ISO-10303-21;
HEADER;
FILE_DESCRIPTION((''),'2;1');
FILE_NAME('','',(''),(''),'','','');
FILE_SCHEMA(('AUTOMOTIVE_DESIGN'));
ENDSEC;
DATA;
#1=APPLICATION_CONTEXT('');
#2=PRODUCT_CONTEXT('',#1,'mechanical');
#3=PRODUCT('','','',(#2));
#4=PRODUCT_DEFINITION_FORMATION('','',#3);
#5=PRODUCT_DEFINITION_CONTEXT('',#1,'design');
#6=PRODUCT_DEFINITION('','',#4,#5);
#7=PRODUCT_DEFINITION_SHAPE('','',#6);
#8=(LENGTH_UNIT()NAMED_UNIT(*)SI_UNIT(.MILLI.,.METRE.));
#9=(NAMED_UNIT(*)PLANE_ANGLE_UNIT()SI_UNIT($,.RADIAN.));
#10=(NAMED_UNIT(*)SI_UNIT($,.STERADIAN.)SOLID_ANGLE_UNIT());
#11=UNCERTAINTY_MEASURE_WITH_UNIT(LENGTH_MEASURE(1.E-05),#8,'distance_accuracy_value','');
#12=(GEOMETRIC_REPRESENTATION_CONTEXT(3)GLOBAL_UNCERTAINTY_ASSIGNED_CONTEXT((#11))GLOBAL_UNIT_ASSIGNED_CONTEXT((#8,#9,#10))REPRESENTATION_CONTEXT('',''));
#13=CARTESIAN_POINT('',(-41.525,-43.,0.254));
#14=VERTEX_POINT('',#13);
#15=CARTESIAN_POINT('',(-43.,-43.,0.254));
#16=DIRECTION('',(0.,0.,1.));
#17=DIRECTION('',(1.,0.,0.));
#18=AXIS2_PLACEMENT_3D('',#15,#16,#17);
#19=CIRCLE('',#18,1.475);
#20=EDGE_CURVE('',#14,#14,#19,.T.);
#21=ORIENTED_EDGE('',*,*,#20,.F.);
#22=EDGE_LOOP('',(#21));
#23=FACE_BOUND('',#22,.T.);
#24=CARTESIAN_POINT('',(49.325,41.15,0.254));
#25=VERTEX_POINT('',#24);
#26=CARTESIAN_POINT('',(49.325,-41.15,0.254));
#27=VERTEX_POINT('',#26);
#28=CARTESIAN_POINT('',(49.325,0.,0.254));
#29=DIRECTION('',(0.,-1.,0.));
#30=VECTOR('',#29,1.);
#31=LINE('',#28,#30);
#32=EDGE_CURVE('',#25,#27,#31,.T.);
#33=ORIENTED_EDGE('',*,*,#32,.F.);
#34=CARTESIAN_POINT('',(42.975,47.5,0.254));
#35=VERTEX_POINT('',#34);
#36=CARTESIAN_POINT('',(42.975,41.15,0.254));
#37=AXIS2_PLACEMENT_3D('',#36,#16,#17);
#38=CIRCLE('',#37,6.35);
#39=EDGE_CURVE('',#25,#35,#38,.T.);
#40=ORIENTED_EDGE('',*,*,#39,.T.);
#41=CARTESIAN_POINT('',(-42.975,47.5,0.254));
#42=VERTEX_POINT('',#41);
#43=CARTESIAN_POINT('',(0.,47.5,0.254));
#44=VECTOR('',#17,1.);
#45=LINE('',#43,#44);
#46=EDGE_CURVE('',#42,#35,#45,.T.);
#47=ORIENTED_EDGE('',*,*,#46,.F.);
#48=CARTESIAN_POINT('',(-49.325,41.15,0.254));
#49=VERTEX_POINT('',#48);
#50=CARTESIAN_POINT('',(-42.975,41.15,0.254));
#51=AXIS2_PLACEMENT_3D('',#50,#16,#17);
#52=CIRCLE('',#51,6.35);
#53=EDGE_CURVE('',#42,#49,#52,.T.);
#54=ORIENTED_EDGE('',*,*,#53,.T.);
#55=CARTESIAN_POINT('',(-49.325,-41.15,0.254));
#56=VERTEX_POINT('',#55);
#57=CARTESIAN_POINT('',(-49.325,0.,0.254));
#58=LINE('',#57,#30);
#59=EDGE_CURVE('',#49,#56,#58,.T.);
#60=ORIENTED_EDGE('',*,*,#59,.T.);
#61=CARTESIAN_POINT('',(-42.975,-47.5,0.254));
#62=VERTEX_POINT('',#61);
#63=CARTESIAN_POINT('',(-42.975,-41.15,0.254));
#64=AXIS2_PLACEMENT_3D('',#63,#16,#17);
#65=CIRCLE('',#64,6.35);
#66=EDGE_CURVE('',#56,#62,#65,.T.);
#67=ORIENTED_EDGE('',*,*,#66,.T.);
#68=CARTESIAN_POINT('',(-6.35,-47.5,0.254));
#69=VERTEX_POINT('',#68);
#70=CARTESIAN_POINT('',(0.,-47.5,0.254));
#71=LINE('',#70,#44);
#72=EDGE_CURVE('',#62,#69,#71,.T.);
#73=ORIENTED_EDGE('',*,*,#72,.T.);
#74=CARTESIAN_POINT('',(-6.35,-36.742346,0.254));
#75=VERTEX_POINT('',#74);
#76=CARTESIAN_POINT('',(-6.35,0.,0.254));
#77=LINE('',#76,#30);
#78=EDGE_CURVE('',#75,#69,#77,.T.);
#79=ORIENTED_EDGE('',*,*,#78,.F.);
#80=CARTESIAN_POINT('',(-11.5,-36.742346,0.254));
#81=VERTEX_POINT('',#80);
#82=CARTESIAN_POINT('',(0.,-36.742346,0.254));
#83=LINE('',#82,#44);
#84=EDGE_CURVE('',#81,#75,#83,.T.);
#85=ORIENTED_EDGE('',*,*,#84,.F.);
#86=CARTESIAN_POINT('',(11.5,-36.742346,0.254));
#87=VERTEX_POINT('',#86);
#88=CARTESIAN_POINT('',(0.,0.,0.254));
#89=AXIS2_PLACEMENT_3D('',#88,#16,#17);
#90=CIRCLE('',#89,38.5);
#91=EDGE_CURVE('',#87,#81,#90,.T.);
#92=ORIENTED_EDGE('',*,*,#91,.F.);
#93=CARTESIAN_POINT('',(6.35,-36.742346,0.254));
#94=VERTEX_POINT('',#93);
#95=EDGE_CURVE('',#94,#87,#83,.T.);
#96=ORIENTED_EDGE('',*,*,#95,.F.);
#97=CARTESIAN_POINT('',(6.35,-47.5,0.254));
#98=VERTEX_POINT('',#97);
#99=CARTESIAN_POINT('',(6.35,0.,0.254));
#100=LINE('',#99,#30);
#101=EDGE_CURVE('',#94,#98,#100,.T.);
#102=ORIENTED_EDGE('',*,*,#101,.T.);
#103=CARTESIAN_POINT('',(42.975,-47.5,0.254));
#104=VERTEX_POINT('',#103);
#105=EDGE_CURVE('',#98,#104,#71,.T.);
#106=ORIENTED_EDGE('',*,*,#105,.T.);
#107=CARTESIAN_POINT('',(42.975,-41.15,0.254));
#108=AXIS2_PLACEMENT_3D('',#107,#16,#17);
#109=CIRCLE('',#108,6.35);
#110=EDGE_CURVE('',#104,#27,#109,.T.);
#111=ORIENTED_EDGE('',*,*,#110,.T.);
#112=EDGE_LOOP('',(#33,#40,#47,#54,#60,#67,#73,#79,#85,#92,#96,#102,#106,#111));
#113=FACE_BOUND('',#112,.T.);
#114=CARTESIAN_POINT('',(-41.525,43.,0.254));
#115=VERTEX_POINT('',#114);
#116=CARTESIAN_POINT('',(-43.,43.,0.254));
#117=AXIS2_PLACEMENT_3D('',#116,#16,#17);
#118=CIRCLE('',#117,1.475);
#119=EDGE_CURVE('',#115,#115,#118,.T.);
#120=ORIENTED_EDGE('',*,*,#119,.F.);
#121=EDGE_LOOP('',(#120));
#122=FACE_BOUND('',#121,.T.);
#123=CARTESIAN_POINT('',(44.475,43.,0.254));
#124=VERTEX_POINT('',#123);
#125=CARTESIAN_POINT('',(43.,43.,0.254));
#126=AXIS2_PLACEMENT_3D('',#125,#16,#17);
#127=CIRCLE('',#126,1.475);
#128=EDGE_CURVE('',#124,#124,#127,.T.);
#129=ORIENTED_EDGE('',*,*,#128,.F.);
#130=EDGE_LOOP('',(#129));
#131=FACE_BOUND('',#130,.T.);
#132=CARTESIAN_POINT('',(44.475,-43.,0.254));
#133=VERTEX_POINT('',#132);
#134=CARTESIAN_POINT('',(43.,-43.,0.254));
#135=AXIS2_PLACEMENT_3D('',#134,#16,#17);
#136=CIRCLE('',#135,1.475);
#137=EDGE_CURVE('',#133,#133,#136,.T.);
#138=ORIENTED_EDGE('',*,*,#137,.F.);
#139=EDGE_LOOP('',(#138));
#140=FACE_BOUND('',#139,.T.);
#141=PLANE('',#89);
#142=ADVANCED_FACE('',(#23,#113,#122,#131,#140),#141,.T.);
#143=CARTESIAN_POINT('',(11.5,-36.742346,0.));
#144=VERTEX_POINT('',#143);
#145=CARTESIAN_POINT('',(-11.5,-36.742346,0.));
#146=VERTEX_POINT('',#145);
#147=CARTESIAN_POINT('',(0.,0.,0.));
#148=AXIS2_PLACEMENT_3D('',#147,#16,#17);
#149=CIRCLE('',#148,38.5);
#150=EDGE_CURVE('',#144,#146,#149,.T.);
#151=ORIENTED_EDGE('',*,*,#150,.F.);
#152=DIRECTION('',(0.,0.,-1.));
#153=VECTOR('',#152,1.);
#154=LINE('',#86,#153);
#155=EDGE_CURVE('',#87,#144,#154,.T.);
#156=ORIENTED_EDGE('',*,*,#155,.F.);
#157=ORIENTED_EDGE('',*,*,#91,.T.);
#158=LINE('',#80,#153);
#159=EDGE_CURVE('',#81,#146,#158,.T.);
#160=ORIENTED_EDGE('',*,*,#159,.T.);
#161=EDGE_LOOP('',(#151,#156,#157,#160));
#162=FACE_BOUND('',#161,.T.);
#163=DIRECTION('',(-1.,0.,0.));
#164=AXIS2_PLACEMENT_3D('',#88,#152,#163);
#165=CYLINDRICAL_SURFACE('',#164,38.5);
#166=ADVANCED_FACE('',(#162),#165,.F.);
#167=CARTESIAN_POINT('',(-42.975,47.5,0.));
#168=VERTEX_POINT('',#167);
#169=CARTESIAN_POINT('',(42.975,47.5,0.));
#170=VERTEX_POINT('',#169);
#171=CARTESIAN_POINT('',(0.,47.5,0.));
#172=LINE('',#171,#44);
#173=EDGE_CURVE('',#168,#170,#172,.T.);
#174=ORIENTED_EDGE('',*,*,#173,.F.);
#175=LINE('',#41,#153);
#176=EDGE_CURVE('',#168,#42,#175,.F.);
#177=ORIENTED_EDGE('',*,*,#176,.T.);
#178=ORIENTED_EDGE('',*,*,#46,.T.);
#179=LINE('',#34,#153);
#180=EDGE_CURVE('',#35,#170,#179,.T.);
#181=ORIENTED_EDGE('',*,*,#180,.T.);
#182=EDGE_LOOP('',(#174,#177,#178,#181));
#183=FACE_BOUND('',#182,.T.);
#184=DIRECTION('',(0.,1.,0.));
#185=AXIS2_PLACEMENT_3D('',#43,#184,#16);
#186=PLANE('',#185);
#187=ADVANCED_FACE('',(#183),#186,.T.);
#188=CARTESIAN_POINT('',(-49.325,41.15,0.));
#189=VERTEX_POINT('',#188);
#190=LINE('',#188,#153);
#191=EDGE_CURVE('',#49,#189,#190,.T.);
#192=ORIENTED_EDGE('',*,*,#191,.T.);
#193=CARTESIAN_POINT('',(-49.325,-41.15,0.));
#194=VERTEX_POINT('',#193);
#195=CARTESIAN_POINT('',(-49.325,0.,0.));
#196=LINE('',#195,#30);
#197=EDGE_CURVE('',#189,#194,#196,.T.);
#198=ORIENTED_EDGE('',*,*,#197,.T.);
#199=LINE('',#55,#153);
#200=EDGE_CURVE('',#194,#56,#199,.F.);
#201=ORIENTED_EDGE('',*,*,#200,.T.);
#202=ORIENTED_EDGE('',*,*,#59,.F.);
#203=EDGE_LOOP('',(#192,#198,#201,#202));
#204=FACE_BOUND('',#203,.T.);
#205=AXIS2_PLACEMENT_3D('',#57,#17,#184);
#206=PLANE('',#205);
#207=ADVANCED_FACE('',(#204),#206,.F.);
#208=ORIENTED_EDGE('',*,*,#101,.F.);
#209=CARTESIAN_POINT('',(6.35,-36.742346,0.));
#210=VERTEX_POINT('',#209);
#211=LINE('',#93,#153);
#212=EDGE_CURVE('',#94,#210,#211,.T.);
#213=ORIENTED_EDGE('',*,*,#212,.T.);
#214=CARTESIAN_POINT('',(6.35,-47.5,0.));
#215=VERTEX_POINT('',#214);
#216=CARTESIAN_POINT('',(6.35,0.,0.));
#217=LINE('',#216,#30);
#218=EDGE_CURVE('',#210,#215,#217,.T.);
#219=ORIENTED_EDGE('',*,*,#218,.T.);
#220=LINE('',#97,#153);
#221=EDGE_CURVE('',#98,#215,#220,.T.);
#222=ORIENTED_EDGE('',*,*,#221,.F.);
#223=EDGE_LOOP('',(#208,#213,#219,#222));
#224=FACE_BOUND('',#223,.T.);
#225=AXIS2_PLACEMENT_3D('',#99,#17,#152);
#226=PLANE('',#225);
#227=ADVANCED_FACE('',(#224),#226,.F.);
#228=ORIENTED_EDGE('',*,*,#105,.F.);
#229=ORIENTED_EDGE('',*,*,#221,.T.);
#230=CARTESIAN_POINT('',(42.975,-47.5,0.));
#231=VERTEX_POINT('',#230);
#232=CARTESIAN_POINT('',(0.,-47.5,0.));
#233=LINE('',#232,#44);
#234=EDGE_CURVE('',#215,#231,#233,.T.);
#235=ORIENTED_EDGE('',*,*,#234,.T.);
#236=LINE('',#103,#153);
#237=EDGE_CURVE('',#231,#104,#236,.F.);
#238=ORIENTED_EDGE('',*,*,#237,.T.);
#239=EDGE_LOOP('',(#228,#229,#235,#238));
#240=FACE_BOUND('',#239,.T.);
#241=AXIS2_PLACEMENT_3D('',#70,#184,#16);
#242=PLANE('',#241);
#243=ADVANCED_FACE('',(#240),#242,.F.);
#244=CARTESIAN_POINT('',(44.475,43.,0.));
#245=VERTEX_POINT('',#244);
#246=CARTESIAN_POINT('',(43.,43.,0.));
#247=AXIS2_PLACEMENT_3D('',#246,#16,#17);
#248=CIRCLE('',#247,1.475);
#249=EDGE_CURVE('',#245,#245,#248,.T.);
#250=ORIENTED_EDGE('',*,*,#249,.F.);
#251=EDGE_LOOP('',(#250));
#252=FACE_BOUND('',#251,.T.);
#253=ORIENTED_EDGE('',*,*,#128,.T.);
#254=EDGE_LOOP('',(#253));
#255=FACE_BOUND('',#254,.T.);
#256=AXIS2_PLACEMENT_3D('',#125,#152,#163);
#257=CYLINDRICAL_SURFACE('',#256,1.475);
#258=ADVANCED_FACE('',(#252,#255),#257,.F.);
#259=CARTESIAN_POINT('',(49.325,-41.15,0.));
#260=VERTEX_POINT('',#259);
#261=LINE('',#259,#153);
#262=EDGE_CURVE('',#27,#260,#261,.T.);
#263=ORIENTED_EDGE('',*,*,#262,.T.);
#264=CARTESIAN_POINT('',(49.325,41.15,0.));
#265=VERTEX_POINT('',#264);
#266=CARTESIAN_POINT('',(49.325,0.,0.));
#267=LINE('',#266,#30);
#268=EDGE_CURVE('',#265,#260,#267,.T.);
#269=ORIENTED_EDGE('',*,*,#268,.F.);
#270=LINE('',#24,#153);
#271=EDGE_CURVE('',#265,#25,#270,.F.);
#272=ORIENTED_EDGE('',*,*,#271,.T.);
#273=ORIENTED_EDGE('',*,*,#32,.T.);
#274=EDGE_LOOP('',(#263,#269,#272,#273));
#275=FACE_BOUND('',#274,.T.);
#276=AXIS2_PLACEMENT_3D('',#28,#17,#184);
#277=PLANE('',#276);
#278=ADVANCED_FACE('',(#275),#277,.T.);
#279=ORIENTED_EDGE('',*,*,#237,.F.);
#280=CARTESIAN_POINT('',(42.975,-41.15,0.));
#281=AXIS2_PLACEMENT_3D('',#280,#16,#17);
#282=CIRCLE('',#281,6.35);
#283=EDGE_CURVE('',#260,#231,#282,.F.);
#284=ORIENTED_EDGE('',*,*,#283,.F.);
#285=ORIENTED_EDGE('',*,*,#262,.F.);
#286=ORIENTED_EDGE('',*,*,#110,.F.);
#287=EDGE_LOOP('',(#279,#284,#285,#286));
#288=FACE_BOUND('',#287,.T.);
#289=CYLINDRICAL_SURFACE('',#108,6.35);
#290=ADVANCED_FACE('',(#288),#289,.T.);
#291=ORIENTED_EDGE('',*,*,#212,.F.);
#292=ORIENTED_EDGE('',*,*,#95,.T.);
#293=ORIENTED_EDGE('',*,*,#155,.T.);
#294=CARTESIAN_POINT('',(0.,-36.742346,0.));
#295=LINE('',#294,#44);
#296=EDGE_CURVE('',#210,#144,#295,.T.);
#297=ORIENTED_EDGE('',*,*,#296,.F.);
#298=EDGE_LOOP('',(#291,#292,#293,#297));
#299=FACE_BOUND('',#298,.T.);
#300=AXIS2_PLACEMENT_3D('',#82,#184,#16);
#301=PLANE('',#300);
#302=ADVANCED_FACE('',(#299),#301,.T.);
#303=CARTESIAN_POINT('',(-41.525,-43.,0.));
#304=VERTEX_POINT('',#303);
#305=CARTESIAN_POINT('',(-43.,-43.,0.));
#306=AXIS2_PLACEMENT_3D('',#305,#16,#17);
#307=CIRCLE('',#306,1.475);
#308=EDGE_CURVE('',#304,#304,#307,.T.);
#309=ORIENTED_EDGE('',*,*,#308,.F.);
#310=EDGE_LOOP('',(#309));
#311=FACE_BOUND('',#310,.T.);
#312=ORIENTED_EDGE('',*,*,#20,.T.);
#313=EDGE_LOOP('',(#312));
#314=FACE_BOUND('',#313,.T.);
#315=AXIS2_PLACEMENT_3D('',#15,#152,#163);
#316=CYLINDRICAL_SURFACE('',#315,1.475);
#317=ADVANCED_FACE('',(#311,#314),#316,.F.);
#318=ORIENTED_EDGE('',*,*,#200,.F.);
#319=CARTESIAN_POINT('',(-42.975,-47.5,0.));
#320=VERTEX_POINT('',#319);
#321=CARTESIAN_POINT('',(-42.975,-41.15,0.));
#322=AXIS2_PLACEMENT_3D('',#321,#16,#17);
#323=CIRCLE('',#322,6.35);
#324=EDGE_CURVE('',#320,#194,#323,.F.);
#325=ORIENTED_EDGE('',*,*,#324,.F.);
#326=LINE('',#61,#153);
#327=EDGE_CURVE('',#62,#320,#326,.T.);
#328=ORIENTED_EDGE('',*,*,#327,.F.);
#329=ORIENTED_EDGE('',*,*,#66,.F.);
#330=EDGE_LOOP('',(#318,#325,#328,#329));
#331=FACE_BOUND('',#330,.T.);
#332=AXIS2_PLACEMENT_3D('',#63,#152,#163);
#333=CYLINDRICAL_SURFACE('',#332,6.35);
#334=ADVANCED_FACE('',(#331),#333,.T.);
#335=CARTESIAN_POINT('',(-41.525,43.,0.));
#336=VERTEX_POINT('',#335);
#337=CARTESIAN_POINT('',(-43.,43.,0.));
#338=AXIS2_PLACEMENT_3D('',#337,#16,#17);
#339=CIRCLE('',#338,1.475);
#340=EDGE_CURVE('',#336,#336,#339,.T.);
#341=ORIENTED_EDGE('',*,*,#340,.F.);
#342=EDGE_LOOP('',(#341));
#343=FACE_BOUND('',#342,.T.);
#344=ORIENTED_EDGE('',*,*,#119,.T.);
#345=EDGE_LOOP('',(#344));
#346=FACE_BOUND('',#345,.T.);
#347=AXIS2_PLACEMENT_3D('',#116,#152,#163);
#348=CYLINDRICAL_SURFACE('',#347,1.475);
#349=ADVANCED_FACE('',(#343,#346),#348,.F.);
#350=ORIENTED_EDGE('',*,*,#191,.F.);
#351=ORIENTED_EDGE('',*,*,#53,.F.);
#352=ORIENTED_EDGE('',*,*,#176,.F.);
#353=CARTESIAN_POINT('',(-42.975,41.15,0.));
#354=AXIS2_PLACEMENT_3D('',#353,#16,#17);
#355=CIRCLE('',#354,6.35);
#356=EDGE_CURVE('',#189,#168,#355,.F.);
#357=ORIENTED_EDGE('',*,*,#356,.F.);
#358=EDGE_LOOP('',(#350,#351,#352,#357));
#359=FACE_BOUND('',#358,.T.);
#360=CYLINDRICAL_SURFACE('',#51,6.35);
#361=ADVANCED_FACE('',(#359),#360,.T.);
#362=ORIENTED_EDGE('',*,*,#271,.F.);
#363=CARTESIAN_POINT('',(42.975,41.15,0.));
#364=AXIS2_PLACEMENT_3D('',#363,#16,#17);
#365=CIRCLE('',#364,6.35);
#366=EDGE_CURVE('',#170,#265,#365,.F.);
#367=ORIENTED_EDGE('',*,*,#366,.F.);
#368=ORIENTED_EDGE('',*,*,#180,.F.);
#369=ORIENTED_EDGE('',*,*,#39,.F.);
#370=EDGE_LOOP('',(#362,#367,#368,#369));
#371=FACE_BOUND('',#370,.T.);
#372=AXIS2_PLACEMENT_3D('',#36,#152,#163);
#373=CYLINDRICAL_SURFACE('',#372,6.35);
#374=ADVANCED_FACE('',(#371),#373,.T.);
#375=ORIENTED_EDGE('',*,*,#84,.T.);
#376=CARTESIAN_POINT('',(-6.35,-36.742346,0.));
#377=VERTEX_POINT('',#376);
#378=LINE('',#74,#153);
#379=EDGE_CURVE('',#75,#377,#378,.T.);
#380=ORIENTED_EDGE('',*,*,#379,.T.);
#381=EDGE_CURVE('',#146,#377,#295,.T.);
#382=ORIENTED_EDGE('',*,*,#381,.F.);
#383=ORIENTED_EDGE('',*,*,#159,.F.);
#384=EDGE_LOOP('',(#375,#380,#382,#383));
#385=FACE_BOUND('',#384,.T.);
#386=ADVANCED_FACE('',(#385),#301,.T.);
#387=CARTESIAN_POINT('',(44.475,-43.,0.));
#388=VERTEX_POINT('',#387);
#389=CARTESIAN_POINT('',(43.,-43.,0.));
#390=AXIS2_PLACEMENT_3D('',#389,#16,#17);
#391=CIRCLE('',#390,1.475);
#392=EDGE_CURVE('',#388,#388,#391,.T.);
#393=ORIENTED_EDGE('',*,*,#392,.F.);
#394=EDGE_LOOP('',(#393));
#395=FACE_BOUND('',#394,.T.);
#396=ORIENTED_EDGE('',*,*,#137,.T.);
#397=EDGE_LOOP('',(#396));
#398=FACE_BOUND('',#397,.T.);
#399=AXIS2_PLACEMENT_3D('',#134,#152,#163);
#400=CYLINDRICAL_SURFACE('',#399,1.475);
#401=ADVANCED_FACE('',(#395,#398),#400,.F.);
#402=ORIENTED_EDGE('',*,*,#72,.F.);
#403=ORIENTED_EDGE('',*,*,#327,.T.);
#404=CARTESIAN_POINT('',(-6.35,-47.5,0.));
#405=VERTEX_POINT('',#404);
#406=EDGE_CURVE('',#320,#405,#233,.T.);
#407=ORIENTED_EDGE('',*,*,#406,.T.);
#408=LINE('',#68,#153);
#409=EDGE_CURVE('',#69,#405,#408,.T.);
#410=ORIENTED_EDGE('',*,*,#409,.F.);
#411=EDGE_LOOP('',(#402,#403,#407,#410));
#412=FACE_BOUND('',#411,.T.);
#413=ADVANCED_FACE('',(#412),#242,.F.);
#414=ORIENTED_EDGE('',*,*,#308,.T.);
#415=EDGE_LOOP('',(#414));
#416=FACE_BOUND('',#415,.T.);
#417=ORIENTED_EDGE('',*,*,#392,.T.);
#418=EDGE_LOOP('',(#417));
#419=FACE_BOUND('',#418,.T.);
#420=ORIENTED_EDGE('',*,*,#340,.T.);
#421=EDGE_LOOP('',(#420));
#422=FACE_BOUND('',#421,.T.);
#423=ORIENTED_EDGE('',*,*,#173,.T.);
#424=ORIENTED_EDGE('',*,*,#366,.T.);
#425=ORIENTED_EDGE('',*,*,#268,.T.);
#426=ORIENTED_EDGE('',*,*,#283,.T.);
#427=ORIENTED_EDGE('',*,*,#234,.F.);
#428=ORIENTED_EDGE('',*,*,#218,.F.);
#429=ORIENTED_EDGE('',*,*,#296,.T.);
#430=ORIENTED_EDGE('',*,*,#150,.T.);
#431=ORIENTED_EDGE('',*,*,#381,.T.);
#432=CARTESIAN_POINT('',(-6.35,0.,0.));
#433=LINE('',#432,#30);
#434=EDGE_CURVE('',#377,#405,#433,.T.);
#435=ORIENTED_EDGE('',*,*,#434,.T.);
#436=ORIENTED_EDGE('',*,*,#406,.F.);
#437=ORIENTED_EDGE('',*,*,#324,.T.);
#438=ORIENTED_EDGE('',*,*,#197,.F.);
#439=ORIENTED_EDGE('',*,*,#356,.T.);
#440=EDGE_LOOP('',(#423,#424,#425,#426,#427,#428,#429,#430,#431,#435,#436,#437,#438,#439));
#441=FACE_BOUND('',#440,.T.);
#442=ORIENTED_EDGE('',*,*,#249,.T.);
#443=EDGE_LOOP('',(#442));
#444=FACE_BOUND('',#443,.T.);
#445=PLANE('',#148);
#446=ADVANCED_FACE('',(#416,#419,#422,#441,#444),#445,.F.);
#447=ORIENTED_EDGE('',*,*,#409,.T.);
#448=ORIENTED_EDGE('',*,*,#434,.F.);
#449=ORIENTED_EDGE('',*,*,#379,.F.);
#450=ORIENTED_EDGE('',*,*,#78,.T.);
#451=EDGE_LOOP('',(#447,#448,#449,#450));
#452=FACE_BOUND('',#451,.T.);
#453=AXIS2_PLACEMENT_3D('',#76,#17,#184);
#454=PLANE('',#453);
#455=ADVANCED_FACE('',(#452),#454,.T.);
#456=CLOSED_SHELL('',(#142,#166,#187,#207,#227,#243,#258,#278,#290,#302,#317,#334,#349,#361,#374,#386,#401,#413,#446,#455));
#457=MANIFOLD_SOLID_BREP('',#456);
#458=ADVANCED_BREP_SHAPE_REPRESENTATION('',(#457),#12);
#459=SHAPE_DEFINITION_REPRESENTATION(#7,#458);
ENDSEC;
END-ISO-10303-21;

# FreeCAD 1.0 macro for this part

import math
import FreeCAD as App
import Part
import Sketcher
from FreeCAD import Vector


def edges_at(feature, points):
    """Names of the edges that pass closest to the given points."""
    edges = feature.Shape.Edges
    near = lambda p: min(range(len(edges)), key=lambda i: edges[i].distToShape(Part.Vertex(*p))[0])
    return sorted({f"Edge{near(p) + 1}" for p in points})

doc = App.newDocument("Part")
params = doc.addObject("Spreadsheet::Sheet", "Params")
for row, (alias, value) in enumerate([
    ("sketch1_radius", "38.5 mm"),
    ("sketch1_diameter", "2.95 mm"),
    ("sketch1_height", "95 mm"),
    ("sketch1_width", "5.15 mm"),
    ("sketch1_width2", "98.65 mm"),
    ("pad1_length", "0.254 mm"),
    ("fillet_radius", "6.35 mm"),
], start=1):
    params.set(f"A{row}", alias)
    params.set(f"B{row}", "=" + value)
    params.setAlias(f"B{row}", alias)

body = doc.addObject("PartDesign::Body", "Body")

# Sketch on XY plane
sketch1 = body.newObject("Sketcher::SketchObject", "Sketch")
sketch1.AttachmentSupport = (doc.getObject("XY_Plane"), [""])
sketch1.MapMode = "FlatFace"
sketch1.addGeometry([
    Part.LineSegment(Vector(-6.35, -47.5, 0), Vector(-6.35, -36.742346, 0)),  # 0
    Part.LineSegment(Vector(-6.35, -36.742346, 0), Vector(-11.5, -36.742346, 0)),  # 1
    Part.ArcOfCircle(Part.Circle(Vector(0, 0, 0), Vector(0, 0, 1), 38.5), math.radians(0), math.radians(252.620383)),  # 2
    Part.ArcOfCircle(Part.Circle(Vector(0, 0, 0), Vector(0, 0, 1), 38.5), math.radians(-72.620383), math.radians(0)),  # 3
    Part.LineSegment(Vector(11.5, -36.742346, 0), Vector(6.35, -36.742346, 0)),  # 4
    Part.LineSegment(Vector(6.35, -36.742346, 0), Vector(6.35, -47.5, 0)),  # 5
    Part.LineSegment(Vector(6.35, -47.5, 0), Vector(49.325, -47.5, 0)),  # 6
    Part.LineSegment(Vector(49.325, -47.5, 0), Vector(49.325, 47.5, 0)),  # 7
    Part.LineSegment(Vector(49.325, 47.5, 0), Vector(-49.325, 47.5, 0)),  # 8
    Part.LineSegment(Vector(-49.325, 47.5, 0), Vector(-49.325, -47.5, 0)),  # 9
    Part.LineSegment(Vector(-49.325, -47.5, 0), Vector(-6.35, -47.5, 0)),  # 10
    Part.Circle(Vector(-43, -43, 0), Vector(0, 0, 1), 1.475),  # 11
    Part.Circle(Vector(43, -43, 0), Vector(0, 0, 1), 1.475),  # 12
    Part.Circle(Vector(-43, 43, 0), Vector(0, 0, 1), 1.475),  # 13
    Part.Circle(Vector(43, 43, 0), Vector(0, 0, 1), 1.475),  # 14
], False)
sketch1.addConstraint([
    Sketcher.Constraint("Coincident", 0, 2, 1, 1),
    Sketcher.Constraint("Coincident", 1, 2, 2, 2),
    Sketcher.Constraint("Tangent", 2, 1, 3, 2),
    Sketcher.Constraint("Coincident", 3, 1, 4, 1),
    Sketcher.Constraint("Coincident", 4, 2, 5, 1),
    Sketcher.Constraint("Coincident", 5, 2, 6, 1),
    Sketcher.Constraint("Coincident", 6, 2, 7, 1),
    Sketcher.Constraint("Coincident", 7, 2, 8, 1),
    Sketcher.Constraint("Coincident", 8, 2, 9, 1),
    Sketcher.Constraint("Coincident", 9, 2, 10, 1),
    Sketcher.Constraint("Coincident", 10, 2, 0, 1),
    Sketcher.Constraint("Vertical", 0),
    Sketcher.Constraint("Horizontal", 1),
    Sketcher.Constraint("Horizontal", 4),
    Sketcher.Constraint("Vertical", 5),
    Sketcher.Constraint("Horizontal", 6),
    Sketcher.Constraint("Vertical", 7),
    Sketcher.Constraint("Horizontal", 8),
    Sketcher.Constraint("Vertical", 9),
    Sketcher.Constraint("Horizontal", 10),
    Sketcher.Constraint("Coincident", 2, 3, -1, 1),
    Sketcher.Constraint("Equal", 2, 3),
    Sketcher.Constraint("Equal", 11, 12),
    Sketcher.Constraint("Equal", 12, 13),
    Sketcher.Constraint("Equal", 13, 14),
    Sketcher.Constraint("Symmetric", 12, 3, 13, 3, -1, 1),
    Sketcher.Constraint("Symmetric", 11, 3, 14, 3, -1, 1),
    Sketcher.Constraint("Symmetric", 6, 2, 8, 2, -1, 1),
    Sketcher.Constraint("Symmetric", 11, 3, 12, 3, -2),
    Sketcher.Constraint("Symmetric", 0, 2, 4, 2, -2),
    Sketcher.Constraint("PointOnObject", 2, 1, -1),
    Sketcher.Constraint("Horizontal", 6, 2, 9, 2),
    Sketcher.Constraint("Radius", 2, 38.5),
    Sketcher.Constraint("Diameter", 11, 2.95),
    Sketcher.Constraint("DistanceY", 7, 1, 7, 2, 95.0),
    Sketcher.Constraint("DistanceX", 11, 3, -1, 1, 43.0),
    Sketcher.Constraint("DistanceY", 11, 3, -1, 1, 43.0),
    Sketcher.Constraint("DistanceX", 1, 2, 3, 1, 23.0),
    Sketcher.Constraint("DistanceX", 1, 2, 1, 1, 5.15),
    Sketcher.Constraint("DistanceX", 8, 2, 8, 1, 98.65),
])
sketch1.setExpression("Constraints[32]", "Params.sketch1_radius")
sketch1.setExpression("Constraints[33]", "Params.sketch1_diameter")
sketch1.setExpression("Constraints[34]", "Params.sketch1_height")
sketch1.setExpression("Constraints[38]", "Params.sketch1_width")
sketch1.setExpression("Constraints[39]", "Params.sketch1_width2")
pad1 = body.newObject("PartDesign::Pad", "Pad")
pad1.Profile = sketch1
pad1.setExpression("Length", "Params.pad1_length")
doc.recompute()

fillet = body.newObject("PartDesign::Fillet", "Fillet")
fillet.Base = (pad1, edges_at(pad1, [
    (-49.325, -47.5, 0.127),
    (-49.325, 47.5, 0.127),
    (49.325, 47.5, 0.127),
    (49.325, -47.5, 0.127),
]))
fillet.setExpression("Radius", "Params.fillet_radius")

doc.recompute()
